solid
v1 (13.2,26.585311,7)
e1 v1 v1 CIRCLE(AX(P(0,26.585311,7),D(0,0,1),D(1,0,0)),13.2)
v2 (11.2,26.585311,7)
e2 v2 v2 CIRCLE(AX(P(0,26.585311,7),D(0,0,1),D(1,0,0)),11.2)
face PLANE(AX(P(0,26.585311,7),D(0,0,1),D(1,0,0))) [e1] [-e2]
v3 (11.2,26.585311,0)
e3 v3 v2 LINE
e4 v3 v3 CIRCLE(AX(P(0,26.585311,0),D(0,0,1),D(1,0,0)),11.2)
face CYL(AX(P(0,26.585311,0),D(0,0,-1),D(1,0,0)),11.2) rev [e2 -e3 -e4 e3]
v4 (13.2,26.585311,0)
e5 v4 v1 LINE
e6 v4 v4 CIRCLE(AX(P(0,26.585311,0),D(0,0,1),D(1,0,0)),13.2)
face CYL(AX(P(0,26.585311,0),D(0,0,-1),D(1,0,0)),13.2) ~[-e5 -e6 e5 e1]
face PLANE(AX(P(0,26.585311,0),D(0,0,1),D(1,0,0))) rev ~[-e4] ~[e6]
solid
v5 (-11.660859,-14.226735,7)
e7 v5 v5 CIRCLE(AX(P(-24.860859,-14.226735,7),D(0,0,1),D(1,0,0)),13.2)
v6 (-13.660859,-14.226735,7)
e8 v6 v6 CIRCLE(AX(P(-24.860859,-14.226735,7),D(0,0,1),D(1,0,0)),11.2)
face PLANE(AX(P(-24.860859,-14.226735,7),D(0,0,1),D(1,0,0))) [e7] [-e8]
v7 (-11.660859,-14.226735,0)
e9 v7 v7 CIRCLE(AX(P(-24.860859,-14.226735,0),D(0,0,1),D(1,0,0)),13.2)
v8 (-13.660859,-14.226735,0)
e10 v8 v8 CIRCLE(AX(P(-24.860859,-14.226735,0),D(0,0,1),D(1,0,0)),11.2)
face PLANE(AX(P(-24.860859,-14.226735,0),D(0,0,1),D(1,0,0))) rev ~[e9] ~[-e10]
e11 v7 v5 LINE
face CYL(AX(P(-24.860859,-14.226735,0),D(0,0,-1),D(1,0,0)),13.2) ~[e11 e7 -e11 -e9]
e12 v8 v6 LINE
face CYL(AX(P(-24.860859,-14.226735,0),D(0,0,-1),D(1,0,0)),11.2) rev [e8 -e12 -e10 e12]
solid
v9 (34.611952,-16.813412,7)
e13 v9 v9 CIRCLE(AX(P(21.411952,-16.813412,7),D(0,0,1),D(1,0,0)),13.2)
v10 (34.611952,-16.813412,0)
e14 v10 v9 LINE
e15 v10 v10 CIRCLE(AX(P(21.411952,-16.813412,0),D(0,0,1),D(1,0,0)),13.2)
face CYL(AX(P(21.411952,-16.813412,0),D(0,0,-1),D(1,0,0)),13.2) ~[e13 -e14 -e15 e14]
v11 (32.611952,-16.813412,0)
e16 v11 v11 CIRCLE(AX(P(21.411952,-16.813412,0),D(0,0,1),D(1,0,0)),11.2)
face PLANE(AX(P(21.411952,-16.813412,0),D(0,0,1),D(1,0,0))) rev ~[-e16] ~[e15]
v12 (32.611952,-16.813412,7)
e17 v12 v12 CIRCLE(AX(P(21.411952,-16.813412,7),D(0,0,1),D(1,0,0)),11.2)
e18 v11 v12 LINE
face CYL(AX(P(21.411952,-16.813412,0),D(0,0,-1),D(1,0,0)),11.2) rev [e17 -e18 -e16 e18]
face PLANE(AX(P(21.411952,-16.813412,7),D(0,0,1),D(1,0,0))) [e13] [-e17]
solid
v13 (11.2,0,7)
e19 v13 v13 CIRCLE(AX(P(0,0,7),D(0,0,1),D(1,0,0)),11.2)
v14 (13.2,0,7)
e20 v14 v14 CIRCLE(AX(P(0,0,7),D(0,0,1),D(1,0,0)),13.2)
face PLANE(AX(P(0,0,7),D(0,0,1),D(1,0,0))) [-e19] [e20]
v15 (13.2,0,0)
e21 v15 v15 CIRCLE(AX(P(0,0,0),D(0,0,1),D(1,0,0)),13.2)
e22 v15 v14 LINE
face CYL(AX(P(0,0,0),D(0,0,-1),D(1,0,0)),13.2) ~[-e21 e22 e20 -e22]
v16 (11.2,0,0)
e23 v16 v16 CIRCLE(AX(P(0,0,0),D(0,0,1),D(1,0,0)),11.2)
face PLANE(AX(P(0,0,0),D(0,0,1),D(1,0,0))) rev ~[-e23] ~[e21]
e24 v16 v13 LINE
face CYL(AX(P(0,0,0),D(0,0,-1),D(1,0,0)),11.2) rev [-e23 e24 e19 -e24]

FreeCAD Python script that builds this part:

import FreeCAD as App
import Part
import Sketcher

V = App.Vector
Q = App.Units.Quantity

doc = App.newDocument("Part")
body = doc.addObject("PartDesign::Body", "Body")
body.AllowCompound = True

# Sketch on XY plane
sketch1 = body.newObject("Sketcher::SketchObject", "Sketch")
sketch1.AttachmentSupport = (doc.getObject("XY_Plane"), [""])
sketch1.MapMode = "FlatFace"
sketch1.addGeometry([
    Part.Circle(V(0, 0, 0), V(0, 0, 1), 13.2),  # 0
    Part.Circle(V(0, 0, 0), V(0, 0, 1), 11.2),  # 1
    Part.Circle(V(-24.860859, -14.226735, 0), V(0, 0, 1), 13.2),  # 2
    Part.Circle(V(-24.860859, -14.226735, 0), V(0, 0, 1), 11.2),  # 3
    Part.Circle(V(21.411952, -16.813412, 0), V(0, 0, 1), 13.2),  # 4
    Part.Circle(V(21.411952, -16.813412, 0), V(0, 0, 1), 11.2),  # 5
    Part.Circle(V(0, 26.585311, 0), V(0, 0, 1), 13.2),  # 6
    Part.Circle(V(0, 26.585311, 0), V(0, 0, 1), 11.2),  # 7
], False)
sketch1.addConstraint([
    Sketcher.Constraint("Coincident", 0, 3, -1, 1),
    Sketcher.Constraint("Coincident", 1, 3, -1, 1),
    Sketcher.Constraint("Coincident", 3, 3, 2, 3),
    Sketcher.Constraint("Coincident", 5, 3, 4, 3),
    Sketcher.Constraint("Coincident", 7, 3, 6, 3),
    Sketcher.Constraint("Equal", 0, 2),
    Sketcher.Constraint("Equal", 1, 3),
    Sketcher.Constraint("Equal", 2, 4),
    Sketcher.Constraint("Equal", 3, 5),
    Sketcher.Constraint("Equal", 4, 6),
    Sketcher.Constraint("Equal", 5, 7),
    Sketcher.Constraint("PointOnObject", 6, 3, -2),
    Sketcher.Constraint("Diameter", 0, Q("26.4 mm")),
    Sketcher.Constraint("Diameter", 1, Q("22.4 mm")),
    Sketcher.Constraint("DistanceX", 2, 3, -1, 1, Q("24.860859 mm")),
    Sketcher.Constraint("DistanceX", -1, 1, 4, 3, Q("21.411952 mm")),
    Sketcher.Constraint("DistanceY", 4, 3, -1, 1, Q("16.813412 mm")),
    Sketcher.Constraint("DistanceY", -1, 1, 6, 3, Q("26.585311 mm")),
    Sketcher.Constraint("DistanceY", 2, 3, -1, 1, Q("14.226735 mm")),
])
pad1 = body.newObject("PartDesign::Pad", "Pad")
pad1.Profile = sketch1
pad1.Length = 7

doc.recompute()
